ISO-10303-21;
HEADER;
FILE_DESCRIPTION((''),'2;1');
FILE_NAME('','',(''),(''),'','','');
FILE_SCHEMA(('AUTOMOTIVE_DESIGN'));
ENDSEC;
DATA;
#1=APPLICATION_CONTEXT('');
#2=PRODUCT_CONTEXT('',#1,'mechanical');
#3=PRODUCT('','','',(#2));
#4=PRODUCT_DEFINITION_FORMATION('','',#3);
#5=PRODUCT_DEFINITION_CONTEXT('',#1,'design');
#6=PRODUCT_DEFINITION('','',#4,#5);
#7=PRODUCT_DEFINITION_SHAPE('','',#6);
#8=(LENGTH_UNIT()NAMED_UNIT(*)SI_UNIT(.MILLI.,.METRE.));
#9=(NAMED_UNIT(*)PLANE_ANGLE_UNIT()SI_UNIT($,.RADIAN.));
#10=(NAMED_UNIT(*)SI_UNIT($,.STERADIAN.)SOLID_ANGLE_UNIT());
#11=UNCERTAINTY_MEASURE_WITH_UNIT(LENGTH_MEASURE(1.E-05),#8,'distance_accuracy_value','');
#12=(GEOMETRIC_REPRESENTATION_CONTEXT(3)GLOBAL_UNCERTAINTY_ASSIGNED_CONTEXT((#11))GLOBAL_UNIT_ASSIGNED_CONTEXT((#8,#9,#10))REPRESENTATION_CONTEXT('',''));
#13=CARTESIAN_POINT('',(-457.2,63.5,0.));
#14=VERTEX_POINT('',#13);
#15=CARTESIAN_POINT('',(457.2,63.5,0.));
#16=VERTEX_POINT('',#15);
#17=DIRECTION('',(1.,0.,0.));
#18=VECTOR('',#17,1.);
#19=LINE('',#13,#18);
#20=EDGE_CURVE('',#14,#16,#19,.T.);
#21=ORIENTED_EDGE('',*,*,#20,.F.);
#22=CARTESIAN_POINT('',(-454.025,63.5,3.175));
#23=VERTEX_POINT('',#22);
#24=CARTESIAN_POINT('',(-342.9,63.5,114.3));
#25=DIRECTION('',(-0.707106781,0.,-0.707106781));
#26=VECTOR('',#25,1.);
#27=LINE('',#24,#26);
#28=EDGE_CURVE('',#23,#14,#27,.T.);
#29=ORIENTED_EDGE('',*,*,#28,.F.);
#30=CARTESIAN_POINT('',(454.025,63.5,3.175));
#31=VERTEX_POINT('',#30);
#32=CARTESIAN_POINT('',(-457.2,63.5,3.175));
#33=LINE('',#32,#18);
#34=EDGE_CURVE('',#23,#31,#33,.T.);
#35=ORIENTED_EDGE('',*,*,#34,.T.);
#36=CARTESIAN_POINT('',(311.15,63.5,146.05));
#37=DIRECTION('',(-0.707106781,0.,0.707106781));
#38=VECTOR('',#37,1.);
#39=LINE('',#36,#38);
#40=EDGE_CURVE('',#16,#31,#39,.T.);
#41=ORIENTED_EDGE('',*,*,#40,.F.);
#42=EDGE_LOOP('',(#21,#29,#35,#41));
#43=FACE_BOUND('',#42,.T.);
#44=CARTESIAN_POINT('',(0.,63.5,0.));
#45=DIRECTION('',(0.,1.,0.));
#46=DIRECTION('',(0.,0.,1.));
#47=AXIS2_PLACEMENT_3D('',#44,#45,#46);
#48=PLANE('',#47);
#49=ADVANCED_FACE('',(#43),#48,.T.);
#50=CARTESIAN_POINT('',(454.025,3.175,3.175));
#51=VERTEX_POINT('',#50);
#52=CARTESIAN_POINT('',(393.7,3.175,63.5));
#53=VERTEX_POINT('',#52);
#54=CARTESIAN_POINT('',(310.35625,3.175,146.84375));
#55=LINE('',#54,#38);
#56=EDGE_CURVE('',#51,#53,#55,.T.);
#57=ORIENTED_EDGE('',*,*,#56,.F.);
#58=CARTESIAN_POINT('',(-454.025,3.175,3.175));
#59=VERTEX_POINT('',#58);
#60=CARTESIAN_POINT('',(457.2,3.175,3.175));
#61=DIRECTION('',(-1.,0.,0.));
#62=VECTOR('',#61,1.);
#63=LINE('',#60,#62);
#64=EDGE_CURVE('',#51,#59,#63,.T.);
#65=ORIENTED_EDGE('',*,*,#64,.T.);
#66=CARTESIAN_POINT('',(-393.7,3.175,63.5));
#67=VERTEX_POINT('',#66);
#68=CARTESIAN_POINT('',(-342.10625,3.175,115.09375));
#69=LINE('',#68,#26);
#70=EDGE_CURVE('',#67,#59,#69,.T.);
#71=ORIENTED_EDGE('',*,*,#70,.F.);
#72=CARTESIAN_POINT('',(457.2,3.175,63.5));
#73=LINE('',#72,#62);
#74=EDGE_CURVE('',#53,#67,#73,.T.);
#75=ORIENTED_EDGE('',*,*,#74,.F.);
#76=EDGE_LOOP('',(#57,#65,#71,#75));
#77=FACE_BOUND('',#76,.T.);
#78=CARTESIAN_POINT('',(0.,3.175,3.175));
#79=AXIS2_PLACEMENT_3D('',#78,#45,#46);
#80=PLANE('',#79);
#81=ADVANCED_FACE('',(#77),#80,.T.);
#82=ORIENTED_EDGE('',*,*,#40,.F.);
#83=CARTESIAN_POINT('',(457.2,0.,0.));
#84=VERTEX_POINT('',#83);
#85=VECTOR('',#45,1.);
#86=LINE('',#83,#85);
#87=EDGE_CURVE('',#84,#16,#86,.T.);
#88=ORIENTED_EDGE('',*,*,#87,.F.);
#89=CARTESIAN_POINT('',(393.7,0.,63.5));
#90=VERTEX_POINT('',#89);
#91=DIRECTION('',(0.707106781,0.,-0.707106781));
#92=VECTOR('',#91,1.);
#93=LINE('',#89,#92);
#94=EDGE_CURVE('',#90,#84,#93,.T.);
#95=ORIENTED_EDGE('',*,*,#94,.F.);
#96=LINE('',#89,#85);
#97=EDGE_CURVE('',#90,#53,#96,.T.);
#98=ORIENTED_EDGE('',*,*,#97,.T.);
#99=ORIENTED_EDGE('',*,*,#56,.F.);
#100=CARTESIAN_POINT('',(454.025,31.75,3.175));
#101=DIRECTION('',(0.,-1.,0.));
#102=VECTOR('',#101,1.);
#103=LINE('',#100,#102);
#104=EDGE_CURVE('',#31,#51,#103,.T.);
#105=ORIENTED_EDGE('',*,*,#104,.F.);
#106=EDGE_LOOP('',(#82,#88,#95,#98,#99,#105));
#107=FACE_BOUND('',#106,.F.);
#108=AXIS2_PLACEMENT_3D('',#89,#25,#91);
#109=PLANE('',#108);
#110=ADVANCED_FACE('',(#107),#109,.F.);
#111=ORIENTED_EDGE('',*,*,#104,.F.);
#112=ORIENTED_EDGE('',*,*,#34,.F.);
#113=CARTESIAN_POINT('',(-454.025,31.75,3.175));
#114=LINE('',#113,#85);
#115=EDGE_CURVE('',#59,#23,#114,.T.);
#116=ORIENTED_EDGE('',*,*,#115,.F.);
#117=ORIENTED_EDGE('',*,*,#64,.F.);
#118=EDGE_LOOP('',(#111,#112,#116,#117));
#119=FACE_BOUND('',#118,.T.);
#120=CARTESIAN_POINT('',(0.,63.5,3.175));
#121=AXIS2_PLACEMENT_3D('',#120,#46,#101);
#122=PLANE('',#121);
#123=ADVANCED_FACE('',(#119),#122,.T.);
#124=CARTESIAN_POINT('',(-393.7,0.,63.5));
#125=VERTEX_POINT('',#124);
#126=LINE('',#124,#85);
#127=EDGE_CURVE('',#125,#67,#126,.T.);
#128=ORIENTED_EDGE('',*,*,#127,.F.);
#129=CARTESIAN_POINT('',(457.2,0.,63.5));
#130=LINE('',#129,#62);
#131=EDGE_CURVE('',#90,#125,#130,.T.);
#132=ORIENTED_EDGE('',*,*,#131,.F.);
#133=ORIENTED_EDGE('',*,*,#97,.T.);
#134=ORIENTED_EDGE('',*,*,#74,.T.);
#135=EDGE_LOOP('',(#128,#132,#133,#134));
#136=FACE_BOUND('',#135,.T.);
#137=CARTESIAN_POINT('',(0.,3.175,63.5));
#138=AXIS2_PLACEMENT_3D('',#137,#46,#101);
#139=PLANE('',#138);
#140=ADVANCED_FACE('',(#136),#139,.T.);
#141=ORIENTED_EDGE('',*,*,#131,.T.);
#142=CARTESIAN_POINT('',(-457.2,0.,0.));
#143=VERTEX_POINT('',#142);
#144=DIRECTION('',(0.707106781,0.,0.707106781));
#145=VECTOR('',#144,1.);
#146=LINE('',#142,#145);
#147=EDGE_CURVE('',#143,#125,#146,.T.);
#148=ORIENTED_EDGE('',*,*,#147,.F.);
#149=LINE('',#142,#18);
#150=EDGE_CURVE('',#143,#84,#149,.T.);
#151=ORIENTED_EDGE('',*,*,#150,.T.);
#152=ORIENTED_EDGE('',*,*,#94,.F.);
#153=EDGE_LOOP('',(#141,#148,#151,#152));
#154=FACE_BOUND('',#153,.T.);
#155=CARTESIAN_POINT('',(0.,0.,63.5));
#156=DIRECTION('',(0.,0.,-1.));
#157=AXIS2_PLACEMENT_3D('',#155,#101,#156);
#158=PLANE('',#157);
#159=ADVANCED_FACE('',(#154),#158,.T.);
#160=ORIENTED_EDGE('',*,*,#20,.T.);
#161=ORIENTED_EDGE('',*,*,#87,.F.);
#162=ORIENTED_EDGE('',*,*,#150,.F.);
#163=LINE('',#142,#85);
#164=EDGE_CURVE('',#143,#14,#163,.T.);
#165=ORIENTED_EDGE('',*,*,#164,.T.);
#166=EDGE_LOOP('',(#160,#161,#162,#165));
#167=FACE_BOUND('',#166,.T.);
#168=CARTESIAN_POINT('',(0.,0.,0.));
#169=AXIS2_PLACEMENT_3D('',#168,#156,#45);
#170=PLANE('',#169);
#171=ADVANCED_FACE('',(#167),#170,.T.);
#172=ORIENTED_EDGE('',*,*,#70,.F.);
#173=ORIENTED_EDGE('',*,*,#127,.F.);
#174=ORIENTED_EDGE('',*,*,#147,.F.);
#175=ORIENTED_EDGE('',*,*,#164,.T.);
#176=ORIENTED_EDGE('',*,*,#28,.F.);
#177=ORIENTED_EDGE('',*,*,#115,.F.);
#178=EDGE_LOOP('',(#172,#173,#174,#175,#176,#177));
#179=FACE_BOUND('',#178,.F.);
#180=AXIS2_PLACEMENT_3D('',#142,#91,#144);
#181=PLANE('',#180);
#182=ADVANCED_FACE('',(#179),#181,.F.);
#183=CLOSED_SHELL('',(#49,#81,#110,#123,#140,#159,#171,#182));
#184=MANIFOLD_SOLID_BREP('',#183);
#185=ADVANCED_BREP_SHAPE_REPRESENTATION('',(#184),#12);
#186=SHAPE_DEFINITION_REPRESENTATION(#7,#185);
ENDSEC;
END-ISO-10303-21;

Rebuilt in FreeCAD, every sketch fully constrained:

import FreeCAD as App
import Part
import Sketcher
from FreeCAD import Vector
Q = App.Units.Quantity

doc = App.newDocument("Part")
body = doc.addObject("PartDesign::Body", "Body")

# Sketch on YZ plane
sketch1 = body.newObject("Sketcher::SketchObject", "Sketch")
sketch1.AttachmentSupport = (doc.getObject("YZ_Plane"), [""])
sketch1.MapMode = "FlatFace"
sketch1.addGeometry(Part.LineSegment(Vector(0, 63.5, 0), Vector(0, 0, 0)), False)
sketch1.addGeometry(Part.LineSegment(Vector(0, 0, 0), Vector(63.5, 0, 0)), False)
sketch1.addGeometry(Part.LineSegment(Vector(63.5, 0, 0), Vector(63.5, 3.2, 0)), False)
sketch1.addGeometry(Part.LineSegment(Vector(63.5, 3.2, 0), Vector(3.2, 3.2, 0)), False)
sketch1.addGeometry(Part.LineSegment(Vector(3.2, 3.2, 0), Vector(3.2, 63.5, 0)), False)
sketch1.addGeometry(Part.LineSegment(Vector(3.2, 63.5, 0), Vector(0, 63.5, 0)), False)
sketch1.addConstraint(Sketcher.Constraint("Coincident", 0, 2, 1, 1))
sketch1.addConstraint(Sketcher.Constraint("Coincident", 1, 2, 2, 1))
sketch1.addConstraint(Sketcher.Constraint("Coincident", 2, 2, 3, 1))
sketch1.addConstraint(Sketcher.Constraint("Coincident", 3, 2, 4, 1))
sketch1.addConstraint(Sketcher.Constraint("Coincident", 4, 2, 5, 1))
sketch1.addConstraint(Sketcher.Constraint("Coincident", 5, 2, 0, 1))
sketch1.addConstraint(Sketcher.Constraint("Vertical", 0))
sketch1.addConstraint(Sketcher.Constraint("Horizontal", 1))
sketch1.addConstraint(Sketcher.Constraint("Vertical", 2))
sketch1.addConstraint(Sketcher.Constraint("Horizontal", 3))
sketch1.addConstraint(Sketcher.Constraint("Vertical", 4))
sketch1.addConstraint(Sketcher.Constraint("Horizontal", 5))
sketch1.addConstraint(Sketcher.Constraint("Coincident", 0, 2, -1, 1))
sketch1.addConstraint(Sketcher.Constraint("Equal", 1, 0))
sketch1.addConstraint(Sketcher.Constraint("Equal", 5, 2))
sketch1.addConstraint(Sketcher.Constraint("DistanceX", 1, 1, 1, 2, Q("2.5 in")))
sketch1.addConstraint(Sketcher.Constraint("DistanceX", 3, 2, 3, 1, Q("2.375 in")))
pad1 = body.newObject("PartDesign::Pad", "Pad")
pad1.Profile = sketch1
pad1.Length = Q("36 in")
pad1.Midplane = True

# Sketch on XZ plane
sketch2 = body.newObject("Sketcher::SketchObject", "Sketch001")
sketch2.AttachmentSupport = (doc.getObject("XZ_Plane"), [""])
sketch2.MapMode = "FlatFace"
sketch2.addGeometry(Part.LineSegment(Vector(-457, 64, 0), Vector(-457, 0, 0)), False)
sketch2.addGeometry(Part.LineSegment(Vector(-457, 0, 0), Vector(-394, 64, 0)), False)
sketch2.addGeometry(Part.LineSegment(Vector(-394, 64, 0), Vector(-457, 64, 0)), False)
sketch2.addGeometry(Part.LineSegment(Vector(394, 64, 0), Vector(457, 0, 0)), False)
sketch2.addGeometry(Part.LineSegment(Vector(457, 0, 0), Vector(457, 64, 0)), False)
sketch2.addGeometry(Part.LineSegment(Vector(457, 64, 0), Vector(394, 64, 0)), False)
sketch2.addConstraint(Sketcher.Constraint("Coincident", 0, 2, 1, 1))
sketch2.addConstraint(Sketcher.Constraint("Coincident", 1, 2, 2, 1))
sketch2.addConstraint(Sketcher.Constraint("Coincident", 2, 2, 0, 1))
sketch2.addConstraint(Sketcher.Constraint("Coincident", 3, 2, 4, 1))
sketch2.addConstraint(Sketcher.Constraint("Coincident", 4, 2, 5, 1))
sketch2.addConstraint(Sketcher.Constraint("Coincident", 5, 2, 3, 1))
sketch2.addConstraint(Sketcher.Constraint("Vertical", 0))
sketch2.addConstraint(Sketcher.Constraint("Horizontal", 2))
sketch2.addConstraint(Sketcher.Constraint("Vertical", 4))
sketch2.addConstraint(Sketcher.Constraint("Horizontal", 5))
sketch2.addConstraint(Sketcher.Constraint("Symmetric", 0, 2, 3, 2, -1, 1))
sketch2.addConstraint(Sketcher.Constraint("Symmetric", 1, 2, 5, 2, -2))
sketch2.addConstraint(Sketcher.Constraint("PointOnObject", 0, 2, -1))
sketch2.addConstraint(Sketcher.Constraint("Perpendicular", 1, 3))
sketch2.addConstraint(Sketcher.Constraint("DistanceX", 2, 2, 2, 1, Q("2.5 in")))
sketch2.addConstraint(Sketcher.Constraint("DistanceX", 0, 2, -1, 1, Q("18 in")))
pocket1 = body.newObject("PartDesign::Pocket", "Pocket")
pocket1.Profile = sketch2
pocket1.Length = Q("3 in")

doc.recompute()
